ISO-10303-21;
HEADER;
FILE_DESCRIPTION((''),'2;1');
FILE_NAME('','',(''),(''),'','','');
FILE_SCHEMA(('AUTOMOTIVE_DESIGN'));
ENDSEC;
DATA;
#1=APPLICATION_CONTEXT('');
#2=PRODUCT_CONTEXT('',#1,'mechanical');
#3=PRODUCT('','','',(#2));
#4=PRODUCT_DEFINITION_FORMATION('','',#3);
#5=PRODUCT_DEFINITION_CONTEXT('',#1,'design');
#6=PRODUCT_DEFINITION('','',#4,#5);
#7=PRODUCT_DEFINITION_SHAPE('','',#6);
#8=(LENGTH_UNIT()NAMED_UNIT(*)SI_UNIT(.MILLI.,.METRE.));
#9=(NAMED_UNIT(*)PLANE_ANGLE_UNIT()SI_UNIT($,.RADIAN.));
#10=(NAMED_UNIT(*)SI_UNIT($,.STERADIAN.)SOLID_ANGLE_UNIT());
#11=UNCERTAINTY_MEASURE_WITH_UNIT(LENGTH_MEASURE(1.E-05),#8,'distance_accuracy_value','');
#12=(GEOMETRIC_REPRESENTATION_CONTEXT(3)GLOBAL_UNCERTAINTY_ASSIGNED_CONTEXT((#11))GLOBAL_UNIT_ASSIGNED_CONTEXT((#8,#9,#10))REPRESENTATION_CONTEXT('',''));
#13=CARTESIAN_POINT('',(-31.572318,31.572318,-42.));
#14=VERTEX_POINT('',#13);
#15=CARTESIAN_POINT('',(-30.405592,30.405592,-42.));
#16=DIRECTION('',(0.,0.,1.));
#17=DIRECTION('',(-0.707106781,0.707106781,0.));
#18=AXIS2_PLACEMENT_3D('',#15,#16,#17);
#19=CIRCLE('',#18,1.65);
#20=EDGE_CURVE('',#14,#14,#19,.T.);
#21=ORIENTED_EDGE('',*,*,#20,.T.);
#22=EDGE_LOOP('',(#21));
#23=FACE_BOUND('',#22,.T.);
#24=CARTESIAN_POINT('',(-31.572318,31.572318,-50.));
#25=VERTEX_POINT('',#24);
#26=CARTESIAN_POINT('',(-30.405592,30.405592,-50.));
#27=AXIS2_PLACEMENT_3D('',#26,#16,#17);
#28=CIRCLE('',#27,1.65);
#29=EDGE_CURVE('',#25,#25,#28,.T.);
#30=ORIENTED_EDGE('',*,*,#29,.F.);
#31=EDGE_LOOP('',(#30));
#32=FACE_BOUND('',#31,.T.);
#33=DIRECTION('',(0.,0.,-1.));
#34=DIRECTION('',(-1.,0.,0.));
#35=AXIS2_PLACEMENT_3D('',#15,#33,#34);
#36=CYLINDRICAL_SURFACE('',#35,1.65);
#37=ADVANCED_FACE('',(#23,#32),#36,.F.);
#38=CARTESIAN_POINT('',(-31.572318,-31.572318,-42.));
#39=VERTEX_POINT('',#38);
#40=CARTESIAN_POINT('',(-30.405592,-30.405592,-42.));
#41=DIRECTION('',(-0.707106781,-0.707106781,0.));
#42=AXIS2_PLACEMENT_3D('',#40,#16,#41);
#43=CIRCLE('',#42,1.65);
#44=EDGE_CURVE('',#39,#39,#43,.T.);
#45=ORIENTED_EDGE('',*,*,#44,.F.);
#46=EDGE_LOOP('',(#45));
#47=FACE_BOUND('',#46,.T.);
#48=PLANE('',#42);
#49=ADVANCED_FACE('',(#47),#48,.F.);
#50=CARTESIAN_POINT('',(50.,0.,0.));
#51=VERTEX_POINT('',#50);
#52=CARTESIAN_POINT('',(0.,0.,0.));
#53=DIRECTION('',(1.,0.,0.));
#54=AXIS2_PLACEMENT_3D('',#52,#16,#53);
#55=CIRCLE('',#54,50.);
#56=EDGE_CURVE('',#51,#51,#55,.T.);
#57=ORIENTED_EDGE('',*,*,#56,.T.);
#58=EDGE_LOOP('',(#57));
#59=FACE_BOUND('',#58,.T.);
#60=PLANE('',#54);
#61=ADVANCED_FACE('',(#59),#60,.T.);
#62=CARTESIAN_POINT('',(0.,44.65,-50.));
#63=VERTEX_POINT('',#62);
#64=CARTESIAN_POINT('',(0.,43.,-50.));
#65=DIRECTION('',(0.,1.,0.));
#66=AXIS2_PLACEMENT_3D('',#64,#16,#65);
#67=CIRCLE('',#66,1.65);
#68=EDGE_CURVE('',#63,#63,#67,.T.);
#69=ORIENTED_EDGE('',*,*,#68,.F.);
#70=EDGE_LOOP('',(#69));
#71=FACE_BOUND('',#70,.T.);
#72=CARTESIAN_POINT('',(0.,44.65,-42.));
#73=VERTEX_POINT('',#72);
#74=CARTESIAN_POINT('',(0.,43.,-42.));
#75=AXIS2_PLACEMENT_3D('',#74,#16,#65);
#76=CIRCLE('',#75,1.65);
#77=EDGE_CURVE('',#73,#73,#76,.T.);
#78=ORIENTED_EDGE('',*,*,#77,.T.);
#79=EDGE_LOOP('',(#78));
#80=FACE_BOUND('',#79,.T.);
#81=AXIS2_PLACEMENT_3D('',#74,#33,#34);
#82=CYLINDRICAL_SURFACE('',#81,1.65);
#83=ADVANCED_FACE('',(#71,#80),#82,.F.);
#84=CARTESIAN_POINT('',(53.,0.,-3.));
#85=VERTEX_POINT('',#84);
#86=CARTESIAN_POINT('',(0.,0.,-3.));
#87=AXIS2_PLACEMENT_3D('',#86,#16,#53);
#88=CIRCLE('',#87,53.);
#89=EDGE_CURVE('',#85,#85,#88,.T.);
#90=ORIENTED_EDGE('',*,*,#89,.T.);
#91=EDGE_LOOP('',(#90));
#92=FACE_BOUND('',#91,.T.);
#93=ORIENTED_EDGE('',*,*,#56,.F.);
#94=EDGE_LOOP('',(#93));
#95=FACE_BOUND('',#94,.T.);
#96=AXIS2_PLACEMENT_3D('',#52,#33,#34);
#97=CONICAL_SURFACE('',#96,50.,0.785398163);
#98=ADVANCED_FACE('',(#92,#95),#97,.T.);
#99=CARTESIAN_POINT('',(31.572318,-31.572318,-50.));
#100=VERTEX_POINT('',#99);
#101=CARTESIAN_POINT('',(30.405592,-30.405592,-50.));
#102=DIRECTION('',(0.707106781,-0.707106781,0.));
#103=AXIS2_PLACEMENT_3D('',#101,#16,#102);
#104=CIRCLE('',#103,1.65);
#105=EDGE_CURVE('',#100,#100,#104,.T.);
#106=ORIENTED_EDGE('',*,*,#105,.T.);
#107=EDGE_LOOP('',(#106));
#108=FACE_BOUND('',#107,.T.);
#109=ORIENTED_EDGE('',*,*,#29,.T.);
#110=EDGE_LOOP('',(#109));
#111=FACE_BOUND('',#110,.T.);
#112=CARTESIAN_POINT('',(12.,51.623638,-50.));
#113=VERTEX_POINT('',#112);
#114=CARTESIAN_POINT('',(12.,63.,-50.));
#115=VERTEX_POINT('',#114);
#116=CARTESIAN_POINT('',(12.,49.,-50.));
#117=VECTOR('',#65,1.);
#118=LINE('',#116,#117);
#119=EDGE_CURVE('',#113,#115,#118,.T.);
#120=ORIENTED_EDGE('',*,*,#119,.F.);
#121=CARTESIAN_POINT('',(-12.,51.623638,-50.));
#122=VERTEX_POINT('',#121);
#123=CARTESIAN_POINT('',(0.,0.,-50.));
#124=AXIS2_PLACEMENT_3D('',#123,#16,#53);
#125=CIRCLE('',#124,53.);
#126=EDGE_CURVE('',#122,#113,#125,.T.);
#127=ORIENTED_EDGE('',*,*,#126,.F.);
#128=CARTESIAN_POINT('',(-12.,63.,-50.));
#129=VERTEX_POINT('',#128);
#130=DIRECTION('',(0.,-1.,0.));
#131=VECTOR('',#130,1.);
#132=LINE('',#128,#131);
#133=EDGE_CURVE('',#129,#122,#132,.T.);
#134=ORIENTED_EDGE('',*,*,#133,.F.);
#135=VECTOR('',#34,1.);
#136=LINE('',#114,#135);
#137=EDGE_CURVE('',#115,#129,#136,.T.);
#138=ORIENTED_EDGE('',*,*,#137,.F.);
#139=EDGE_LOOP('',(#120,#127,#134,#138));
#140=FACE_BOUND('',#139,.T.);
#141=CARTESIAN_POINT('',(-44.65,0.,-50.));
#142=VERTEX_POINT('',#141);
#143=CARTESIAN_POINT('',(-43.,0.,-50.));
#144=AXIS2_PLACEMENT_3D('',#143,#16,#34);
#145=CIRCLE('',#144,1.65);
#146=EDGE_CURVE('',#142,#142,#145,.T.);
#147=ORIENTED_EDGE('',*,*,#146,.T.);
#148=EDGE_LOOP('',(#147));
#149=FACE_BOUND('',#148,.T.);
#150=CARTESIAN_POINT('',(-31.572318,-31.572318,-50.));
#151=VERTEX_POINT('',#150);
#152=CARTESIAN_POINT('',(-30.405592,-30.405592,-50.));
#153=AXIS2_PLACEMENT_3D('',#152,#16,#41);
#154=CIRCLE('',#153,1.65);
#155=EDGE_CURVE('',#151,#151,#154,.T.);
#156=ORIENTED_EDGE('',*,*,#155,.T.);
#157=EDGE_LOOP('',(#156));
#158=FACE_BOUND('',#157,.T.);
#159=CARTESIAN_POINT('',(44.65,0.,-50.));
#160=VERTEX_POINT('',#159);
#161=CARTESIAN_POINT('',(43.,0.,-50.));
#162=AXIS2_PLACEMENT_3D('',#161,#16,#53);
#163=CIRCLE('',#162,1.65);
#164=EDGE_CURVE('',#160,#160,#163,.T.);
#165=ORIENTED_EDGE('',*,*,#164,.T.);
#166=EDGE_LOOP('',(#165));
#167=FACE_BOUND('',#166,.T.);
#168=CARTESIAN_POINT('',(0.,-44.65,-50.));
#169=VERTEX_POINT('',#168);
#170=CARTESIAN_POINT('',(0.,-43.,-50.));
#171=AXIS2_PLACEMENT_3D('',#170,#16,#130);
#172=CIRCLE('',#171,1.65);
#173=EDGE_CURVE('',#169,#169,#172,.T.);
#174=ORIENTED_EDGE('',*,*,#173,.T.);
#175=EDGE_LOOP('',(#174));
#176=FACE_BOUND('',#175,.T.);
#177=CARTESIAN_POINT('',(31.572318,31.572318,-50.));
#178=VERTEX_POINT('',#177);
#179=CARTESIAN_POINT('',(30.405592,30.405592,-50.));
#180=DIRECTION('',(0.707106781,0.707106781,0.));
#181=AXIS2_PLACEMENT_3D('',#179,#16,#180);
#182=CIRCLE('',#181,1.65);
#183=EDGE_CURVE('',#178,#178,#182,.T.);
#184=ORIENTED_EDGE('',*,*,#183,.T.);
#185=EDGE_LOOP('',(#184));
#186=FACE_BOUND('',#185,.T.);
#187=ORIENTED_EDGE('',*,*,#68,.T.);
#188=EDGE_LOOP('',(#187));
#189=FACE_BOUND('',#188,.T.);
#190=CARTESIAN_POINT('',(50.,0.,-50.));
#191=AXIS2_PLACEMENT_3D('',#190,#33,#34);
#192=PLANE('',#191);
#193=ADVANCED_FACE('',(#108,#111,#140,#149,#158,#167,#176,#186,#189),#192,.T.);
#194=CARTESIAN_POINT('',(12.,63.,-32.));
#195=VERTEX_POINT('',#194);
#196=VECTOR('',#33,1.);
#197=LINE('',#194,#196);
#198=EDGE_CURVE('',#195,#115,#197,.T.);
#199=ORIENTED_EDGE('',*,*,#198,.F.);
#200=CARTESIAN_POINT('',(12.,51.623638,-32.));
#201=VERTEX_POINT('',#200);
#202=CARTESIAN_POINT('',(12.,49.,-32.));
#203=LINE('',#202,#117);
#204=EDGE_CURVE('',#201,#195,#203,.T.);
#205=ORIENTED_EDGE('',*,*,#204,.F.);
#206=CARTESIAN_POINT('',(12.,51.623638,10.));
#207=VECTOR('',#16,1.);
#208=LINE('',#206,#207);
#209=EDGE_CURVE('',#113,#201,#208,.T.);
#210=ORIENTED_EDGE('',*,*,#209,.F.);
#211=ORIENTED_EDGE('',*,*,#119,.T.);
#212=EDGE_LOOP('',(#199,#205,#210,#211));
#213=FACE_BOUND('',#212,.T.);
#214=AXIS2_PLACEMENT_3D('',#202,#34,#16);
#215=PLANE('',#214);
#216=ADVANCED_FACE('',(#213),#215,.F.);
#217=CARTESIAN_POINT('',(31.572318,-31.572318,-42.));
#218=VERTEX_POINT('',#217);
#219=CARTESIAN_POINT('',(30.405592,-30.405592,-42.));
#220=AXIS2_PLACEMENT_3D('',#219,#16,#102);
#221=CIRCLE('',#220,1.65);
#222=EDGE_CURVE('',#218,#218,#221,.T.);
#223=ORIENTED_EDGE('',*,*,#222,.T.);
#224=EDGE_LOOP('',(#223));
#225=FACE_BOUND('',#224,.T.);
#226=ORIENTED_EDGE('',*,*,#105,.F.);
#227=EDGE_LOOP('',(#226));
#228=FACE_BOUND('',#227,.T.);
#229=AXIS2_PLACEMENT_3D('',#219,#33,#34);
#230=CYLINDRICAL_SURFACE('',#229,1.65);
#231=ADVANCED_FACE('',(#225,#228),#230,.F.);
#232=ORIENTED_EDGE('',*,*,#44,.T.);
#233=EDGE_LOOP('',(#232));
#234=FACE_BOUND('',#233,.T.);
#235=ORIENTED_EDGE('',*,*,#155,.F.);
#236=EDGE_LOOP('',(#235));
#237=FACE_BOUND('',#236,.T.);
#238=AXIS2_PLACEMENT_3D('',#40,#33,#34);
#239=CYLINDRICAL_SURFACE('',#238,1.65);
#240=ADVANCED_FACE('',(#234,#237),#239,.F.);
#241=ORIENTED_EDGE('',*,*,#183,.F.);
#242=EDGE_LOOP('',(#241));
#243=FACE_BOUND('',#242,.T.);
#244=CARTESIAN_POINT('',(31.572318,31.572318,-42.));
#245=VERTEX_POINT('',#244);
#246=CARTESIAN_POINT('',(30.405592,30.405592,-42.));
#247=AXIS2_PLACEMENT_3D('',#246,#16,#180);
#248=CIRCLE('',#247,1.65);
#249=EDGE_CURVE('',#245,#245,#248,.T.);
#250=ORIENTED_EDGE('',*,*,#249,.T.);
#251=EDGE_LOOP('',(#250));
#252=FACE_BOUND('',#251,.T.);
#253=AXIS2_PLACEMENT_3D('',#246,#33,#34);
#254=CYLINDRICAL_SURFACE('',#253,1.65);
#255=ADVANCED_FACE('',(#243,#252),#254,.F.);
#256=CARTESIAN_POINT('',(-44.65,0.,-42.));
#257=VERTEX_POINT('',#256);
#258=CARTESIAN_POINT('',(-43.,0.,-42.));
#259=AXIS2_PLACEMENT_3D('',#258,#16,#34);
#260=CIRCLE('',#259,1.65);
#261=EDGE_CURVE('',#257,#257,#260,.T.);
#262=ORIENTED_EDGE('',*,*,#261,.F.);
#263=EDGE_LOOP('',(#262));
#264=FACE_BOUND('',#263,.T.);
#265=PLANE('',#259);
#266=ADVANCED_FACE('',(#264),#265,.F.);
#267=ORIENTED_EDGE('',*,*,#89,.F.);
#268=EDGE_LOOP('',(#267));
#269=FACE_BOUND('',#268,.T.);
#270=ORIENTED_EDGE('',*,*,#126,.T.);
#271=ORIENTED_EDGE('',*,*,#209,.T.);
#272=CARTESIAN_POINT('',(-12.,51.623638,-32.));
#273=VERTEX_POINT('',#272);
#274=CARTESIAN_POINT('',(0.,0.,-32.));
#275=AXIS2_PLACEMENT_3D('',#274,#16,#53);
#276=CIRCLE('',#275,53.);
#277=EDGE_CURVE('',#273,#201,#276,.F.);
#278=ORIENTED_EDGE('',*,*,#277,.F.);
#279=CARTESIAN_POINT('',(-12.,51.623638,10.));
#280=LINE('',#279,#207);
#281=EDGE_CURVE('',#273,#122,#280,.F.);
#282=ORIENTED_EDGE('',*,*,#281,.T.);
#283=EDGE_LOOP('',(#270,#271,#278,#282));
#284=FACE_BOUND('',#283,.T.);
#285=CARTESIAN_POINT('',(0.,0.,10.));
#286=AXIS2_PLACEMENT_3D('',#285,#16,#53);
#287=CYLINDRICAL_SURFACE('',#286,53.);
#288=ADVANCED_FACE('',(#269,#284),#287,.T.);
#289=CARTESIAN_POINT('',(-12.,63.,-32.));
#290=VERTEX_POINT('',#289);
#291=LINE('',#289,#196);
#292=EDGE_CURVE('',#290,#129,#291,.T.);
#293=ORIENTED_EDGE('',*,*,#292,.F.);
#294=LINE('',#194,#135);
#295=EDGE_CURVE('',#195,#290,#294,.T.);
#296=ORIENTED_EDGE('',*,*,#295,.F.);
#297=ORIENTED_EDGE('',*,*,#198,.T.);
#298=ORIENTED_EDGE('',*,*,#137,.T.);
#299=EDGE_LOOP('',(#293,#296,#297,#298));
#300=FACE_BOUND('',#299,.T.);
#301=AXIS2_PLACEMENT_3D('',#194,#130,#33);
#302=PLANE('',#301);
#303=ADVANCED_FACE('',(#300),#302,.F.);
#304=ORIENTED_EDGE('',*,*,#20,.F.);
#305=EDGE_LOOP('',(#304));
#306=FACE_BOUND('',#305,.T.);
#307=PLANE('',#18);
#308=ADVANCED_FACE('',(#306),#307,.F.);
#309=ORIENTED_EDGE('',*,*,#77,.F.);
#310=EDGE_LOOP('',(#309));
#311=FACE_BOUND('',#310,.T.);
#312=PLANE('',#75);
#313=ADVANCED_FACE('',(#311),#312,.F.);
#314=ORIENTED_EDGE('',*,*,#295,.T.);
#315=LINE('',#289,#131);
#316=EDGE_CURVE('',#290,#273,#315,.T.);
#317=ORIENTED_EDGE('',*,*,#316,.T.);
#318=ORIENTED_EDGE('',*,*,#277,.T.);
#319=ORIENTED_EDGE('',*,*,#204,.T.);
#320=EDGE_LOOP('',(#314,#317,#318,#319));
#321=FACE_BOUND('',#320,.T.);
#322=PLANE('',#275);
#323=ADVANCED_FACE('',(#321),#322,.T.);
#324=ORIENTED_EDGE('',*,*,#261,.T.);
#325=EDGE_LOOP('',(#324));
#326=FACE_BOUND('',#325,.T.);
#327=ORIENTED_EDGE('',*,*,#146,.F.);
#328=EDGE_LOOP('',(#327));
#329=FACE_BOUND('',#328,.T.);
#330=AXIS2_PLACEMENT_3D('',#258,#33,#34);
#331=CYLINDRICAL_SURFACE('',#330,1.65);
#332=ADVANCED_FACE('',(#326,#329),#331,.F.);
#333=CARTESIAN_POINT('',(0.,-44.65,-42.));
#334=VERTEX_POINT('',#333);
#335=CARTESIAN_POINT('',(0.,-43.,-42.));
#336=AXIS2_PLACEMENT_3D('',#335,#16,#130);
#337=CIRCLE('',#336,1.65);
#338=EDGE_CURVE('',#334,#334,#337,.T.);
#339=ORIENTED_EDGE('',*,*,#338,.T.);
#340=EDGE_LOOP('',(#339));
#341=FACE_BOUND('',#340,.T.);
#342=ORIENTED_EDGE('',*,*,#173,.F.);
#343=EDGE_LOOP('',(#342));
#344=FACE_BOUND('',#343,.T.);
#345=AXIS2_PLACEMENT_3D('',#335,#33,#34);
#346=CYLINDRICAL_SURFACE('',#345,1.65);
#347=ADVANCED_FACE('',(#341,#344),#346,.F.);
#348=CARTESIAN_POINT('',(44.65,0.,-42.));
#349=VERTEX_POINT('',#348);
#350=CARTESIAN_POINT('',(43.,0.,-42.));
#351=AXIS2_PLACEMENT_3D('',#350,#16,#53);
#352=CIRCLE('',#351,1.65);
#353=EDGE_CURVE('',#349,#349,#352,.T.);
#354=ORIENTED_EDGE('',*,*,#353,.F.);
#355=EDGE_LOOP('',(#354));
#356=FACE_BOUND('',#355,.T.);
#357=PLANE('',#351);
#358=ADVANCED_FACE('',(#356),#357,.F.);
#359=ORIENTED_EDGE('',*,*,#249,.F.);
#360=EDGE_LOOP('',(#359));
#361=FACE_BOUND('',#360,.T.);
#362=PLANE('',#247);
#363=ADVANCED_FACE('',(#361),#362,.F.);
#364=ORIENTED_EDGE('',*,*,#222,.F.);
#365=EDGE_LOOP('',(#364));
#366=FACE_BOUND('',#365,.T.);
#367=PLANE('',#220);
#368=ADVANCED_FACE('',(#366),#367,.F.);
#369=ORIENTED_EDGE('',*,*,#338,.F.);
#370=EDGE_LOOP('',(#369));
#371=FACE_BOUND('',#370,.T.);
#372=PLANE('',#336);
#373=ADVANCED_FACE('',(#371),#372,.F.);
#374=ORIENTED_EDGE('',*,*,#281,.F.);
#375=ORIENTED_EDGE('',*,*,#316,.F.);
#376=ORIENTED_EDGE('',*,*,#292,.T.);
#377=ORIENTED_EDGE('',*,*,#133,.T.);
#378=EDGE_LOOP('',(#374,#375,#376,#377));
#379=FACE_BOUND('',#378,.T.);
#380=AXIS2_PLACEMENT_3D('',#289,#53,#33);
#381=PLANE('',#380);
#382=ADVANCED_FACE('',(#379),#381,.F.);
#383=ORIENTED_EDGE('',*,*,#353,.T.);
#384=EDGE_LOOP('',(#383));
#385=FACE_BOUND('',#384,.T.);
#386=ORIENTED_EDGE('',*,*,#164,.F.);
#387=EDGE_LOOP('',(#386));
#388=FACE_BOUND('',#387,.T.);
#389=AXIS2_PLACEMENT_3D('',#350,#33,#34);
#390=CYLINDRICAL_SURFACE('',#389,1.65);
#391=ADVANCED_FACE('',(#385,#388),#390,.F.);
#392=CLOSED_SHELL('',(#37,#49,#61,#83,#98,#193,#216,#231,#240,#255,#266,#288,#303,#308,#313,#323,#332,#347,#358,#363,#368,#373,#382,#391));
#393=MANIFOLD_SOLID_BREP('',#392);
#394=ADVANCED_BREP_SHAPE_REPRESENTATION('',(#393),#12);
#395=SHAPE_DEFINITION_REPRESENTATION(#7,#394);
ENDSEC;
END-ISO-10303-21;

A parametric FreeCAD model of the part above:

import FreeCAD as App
import Part
import Sketcher

doc = App.newDocument("Part")
body = doc.addObject("PartDesign::Body", "Body")

# Sketch on XZ plane
sketch1 = body.newObject("Sketcher::SketchObject", "Sketch")
sketch1.AttachmentSupport = (doc.getObject("XZ_Plane"), [""])
sketch1.MapMode = "FlatFace"
sketch1.addGeometry([
    Part.LineSegment(App.Vector(0, 0, 0), App.Vector(50, 0, 0)),  # 0
    Part.LineSegment(App.Vector(50, 0, 0), App.Vector(53, -3, 0)),  # 1
    Part.LineSegment(App.Vector(53, -3, 0), App.Vector(53, -50, 0)),  # 2
    Part.LineSegment(App.Vector(53, -50, 0), App.Vector(0, -50, 0)),  # 3
    Part.LineSegment(App.Vector(0, -50, 0), App.Vector(0, 0, 0)),  # 4
], False)
sketch1.addConstraint([
    Sketcher.Constraint("Coincident", 0, 2, 1, 1),
    Sketcher.Constraint("Coincident", 1, 2, 2, 1),
    Sketcher.Constraint("Coincident", 2, 2, 3, 1),
    Sketcher.Constraint("Coincident", 3, 2, 4, 1),
    Sketcher.Constraint("Coincident", 4, 2, 0, 1),
    Sketcher.Constraint("Horizontal", 0),
    Sketcher.Constraint("Vertical", 2),
    Sketcher.Constraint("Horizontal", 3),
    Sketcher.Constraint("Vertical", 4),
    Sketcher.Constraint("Coincident", 4, 2, -1, 1),
    Sketcher.Constraint("Equal", 0, 4),
    Sketcher.Constraint("DistanceX", 0, 1, 0, 2, 50.0),
    Sketcher.Constraint("DistanceX", 3, 2, 3, 1, 53.0),
    Sketcher.Constraint("DistanceY", 2, 2, 2, 1, 47.0),
])
revolution = body.newObject("PartDesign::Revolution", "Revolution")
revolution.Profile = sketch1
revolution.ReferenceAxis = (sketch1, ["V_Axis"])
revolution.Angle = 360

# Sketch on XY plane
sketch2 = body.newObject("Sketcher::SketchObject", "Sketch001")
sketch2.AttachmentSupport = (doc.getObject("XY_Plane"), [""])
sketch2.MapMode = "FlatFace"
sketch2.AttachmentOffset = App.Placement(App.Vector(0, 0, -50), App.Rotation())
sketch2.addGeometry(Part.Circle(App.Vector(43, 0, 0), App.Vector(0, 0, 1), 1.6), False)
sketch2.addConstraint([
    Sketcher.Constraint("PointOnObject", 0, 3, -1),
    Sketcher.Constraint("Diameter", 0, 3.3),
    Sketcher.Constraint("DistanceX", -1, 1, 0, 3, 43.0),
])
pocket1 = body.newObject("PartDesign::Pocket", "Pocket")
pocket1.Profile = sketch2
pocket1.Length = 8
pocket1.Reversed = True
doc.recompute()

polarpattern = body.newObject("PartDesign::PolarPattern", "PolarPattern")
polarpattern.Originals = [pocket1]
polarpattern.Axis = (doc.getObject("Z_Axis"), [""])
polarpattern.Angle = 360
polarpattern.Occurrences = 8
body.Tip = polarpattern

# Sketch on XY plane
sketch3 = body.newObject("Sketcher::SketchObject", "Sketch002")
sketch3.AttachmentSupport = (doc.getObject("XY_Plane"), [""])
sketch3.MapMode = "FlatFace"
sketch3.AttachmentOffset = App.Placement(App.Vector(0, 0, -50), App.Rotation())
sketch3.addGeometry([
    Part.LineSegment(App.Vector(-12, 63, 0), App.Vector(-12, 49, 0)),
    Part.LineSegment(App.Vector(-12, 49, 0), App.Vector(12, 49, 0)),
    Part.LineSegment(App.Vector(12, 49, 0), App.Vector(12, 63, 0)),
    Part.LineSegment(App.Vector(12, 63, 0), App.Vector(-12, 63, 0)),
], False)
sketch3.addConstraint([
    Sketcher.Constraint("Coincident", 0, 2, 1, 1),
    Sketcher.Constraint("Coincident", 1, 2, 2, 1),
    Sketcher.Constraint("Coincident", 2, 2, 3, 1),
    Sketcher.Constraint("Coincident", 3, 2, 0, 1),
    Sketcher.Constraint("Vertical", 0),
    Sketcher.Constraint("Horizontal", 1),
    Sketcher.Constraint("Vertical", 2),
    Sketcher.Constraint("Horizontal", 3),
    Sketcher.Constraint("DistanceX", 1, 1, 1, 2, 24.0),
    Sketcher.Constraint("DistanceY", 0, 2, 0, 1, 14.0),
    Sketcher.Constraint("DistanceX", 0, 2, -1, 1, 12.0),
    Sketcher.Constraint("DistanceY", -1, 1, 0, 2, 49.0),
])
pad1 = body.newObject("PartDesign::Pad", "Pad")
pad1.Profile = sketch3
pad1.Length = 18

doc.recompute()
